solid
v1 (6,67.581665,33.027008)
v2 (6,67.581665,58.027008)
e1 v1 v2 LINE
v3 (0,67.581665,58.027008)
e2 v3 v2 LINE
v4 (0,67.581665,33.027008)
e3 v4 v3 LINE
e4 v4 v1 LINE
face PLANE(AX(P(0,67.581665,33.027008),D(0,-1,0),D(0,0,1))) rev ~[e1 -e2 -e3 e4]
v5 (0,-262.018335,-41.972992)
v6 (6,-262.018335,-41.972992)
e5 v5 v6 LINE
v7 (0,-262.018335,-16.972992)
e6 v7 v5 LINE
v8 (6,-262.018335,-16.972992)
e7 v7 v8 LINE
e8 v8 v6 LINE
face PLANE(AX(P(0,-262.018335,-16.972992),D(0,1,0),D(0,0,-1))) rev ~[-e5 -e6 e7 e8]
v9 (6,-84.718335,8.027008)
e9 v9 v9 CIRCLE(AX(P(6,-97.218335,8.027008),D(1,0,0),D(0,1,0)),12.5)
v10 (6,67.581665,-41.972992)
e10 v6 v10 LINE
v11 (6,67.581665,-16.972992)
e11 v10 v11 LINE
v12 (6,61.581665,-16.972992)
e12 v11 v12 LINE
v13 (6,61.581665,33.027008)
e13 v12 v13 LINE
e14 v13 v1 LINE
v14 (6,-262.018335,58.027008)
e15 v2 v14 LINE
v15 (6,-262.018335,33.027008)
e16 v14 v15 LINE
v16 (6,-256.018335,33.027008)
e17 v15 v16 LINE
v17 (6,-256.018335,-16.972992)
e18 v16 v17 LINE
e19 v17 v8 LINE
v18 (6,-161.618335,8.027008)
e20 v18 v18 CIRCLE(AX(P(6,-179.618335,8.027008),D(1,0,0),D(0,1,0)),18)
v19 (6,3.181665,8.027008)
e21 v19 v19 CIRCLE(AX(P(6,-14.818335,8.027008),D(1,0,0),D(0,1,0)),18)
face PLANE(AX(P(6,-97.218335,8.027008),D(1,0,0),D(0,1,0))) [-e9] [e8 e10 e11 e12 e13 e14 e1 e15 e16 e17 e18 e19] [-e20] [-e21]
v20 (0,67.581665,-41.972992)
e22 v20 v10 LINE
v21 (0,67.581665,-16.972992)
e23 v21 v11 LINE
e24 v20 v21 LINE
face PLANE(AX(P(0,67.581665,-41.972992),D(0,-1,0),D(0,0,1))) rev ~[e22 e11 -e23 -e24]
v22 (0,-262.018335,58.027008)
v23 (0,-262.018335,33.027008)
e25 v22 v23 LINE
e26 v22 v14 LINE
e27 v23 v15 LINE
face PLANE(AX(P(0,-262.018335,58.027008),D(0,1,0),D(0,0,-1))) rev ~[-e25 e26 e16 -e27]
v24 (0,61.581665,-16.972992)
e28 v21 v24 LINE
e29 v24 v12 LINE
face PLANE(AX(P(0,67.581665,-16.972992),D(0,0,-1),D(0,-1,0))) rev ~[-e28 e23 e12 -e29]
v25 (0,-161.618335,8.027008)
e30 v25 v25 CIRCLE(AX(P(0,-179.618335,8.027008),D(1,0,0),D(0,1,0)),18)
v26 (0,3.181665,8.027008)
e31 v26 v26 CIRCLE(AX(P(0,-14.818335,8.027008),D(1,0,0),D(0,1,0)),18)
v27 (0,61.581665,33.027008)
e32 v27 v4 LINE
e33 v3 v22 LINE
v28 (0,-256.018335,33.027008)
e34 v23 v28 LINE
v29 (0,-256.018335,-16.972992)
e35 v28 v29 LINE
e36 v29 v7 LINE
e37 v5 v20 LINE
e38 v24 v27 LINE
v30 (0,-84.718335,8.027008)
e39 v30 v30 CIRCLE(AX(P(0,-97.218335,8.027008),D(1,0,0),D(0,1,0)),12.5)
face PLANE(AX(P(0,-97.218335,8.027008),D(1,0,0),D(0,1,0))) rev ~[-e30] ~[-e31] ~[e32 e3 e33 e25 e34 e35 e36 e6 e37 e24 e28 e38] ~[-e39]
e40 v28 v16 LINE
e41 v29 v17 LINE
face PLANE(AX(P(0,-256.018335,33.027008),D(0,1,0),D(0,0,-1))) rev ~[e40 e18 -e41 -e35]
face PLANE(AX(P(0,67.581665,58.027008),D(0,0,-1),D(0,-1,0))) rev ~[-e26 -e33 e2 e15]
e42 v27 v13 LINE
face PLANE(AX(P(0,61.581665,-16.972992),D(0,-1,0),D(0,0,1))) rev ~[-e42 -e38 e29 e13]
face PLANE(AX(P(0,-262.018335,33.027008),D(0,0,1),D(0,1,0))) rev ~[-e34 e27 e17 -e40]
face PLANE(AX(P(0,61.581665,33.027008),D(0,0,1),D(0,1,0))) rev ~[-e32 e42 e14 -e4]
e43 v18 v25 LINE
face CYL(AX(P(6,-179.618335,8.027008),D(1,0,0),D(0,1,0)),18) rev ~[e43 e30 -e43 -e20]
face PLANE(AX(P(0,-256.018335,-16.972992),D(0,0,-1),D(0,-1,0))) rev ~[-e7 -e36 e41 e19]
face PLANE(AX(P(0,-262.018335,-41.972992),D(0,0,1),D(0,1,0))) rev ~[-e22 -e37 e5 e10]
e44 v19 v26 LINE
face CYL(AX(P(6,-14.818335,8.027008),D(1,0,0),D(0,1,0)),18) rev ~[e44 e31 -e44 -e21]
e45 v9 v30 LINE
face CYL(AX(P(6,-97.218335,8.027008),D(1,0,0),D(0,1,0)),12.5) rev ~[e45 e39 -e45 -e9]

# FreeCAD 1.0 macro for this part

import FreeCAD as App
import Part
import Sketcher

V = App.Vector
Q = App.Units.Quantity

doc = App.newDocument("Part")
body = doc.addObject("PartDesign::Body", "Body")

# Sketch on YZ plane
sketch1 = body.newObject("Sketcher::SketchObject", "Sketch")
sketch1.AttachmentSupport = (doc.getObject("YZ_Plane"), [""])
sketch1.MapMode = "FlatFace"
sketch1.addGeometry([
    Part.LineSegment(V(-262, 58, 0), V(-262, 33, 0)),  # 0
    Part.LineSegment(V(-262, 33, 0), V(-256, 33, 0)),  # 1
    Part.LineSegment(V(-256, 33, 0), V(-256, -17, 0)),  # 2
    Part.LineSegment(V(-256, -17, 0), V(-262, -17, 0)),  # 3
    Part.LineSegment(V(-262, -17, 0), V(-262, -42, 0)),  # 4
    Part.LineSegment(V(-262, -42, 0), V(68, -42, 0)),  # 5
    Part.LineSegment(V(68, -42, 0), V(68, -17, 0)),  # 6
    Part.LineSegment(V(68, -17, 0), V(62, -17, 0)),  # 7
    Part.LineSegment(V(62, -17, 0), V(62, 33, 0)),  # 8
    Part.LineSegment(V(62, 33, 0), V(68, 33, 0)),  # 9
    Part.LineSegment(V(68, 33, 0), V(68, 58, 0)),  # 10
    Part.LineSegment(V(68, 58, 0), V(-262, 58, 0)),  # 11
], False)
sketch1.addConstraint([
    Sketcher.Constraint("Coincident", 0, 2, 1, 1),
    Sketcher.Constraint("Coincident", 1, 2, 2, 1),
    Sketcher.Constraint("Coincident", 2, 2, 3, 1),
    Sketcher.Constraint("Coincident", 3, 2, 4, 1),
    Sketcher.Constraint("Coincident", 4, 2, 5, 1),
    Sketcher.Constraint("Coincident", 5, 2, 6, 1),
    Sketcher.Constraint("Coincident", 6, 2, 7, 1),
    Sketcher.Constraint("Coincident", 7, 2, 8, 1),
    Sketcher.Constraint("Coincident", 8, 2, 9, 1),
    Sketcher.Constraint("Coincident", 9, 2, 10, 1),
    Sketcher.Constraint("Coincident", 10, 2, 11, 1),
    Sketcher.Constraint("Coincident", 11, 2, 0, 1),
    Sketcher.Constraint("Vertical", 0),
    Sketcher.Constraint("Horizontal", 1),
    Sketcher.Constraint("Vertical", 2),
    Sketcher.Constraint("Horizontal", 3),
    Sketcher.Constraint("Vertical", 4),
    Sketcher.Constraint("Horizontal", 5),
    Sketcher.Constraint("Vertical", 6),
    Sketcher.Constraint("Horizontal", 7),
    Sketcher.Constraint("Vertical", 8),
    Sketcher.Constraint("Horizontal", 9),
    Sketcher.Constraint("Vertical", 10),
    Sketcher.Constraint("Horizontal", 11),
    Sketcher.Constraint("Horizontal", 3, 2, 6, 2),
    Sketcher.Constraint("Horizontal", 1, 2, 8, 2),
    Sketcher.Constraint("Vertical", 0, 2, 3, 2),
    Sketcher.Constraint("Vertical", 6, 2, 9, 2),
    Sketcher.Constraint("Equal", 3, 7),
    Sketcher.Constraint("Equal", 0, 4),
    Sketcher.Constraint("DistanceX", 1, 1, 1, 2, Q("6 mm")),
    Sketcher.Constraint("DistanceY", 0, 2, 0, 1, Q("25 mm")),
    Sketcher.Constraint("DistanceY", 2, 2, 2, 1, Q("50 mm")),
    Sketcher.Constraint("DistanceX", 5, 1, 5, 2, Q("329.6 mm")),
    Sketcher.Constraint("DistanceY", -1, 1, 0, 2, Q("33.027008 mm")),
    Sketcher.Constraint("DistanceX", 0, 2, -1, 1, Q("262.018335 mm")),
])
pad1 = body.newObject("PartDesign::Pad", "Pad")
pad1.Profile = sketch1
pad1.Length = 6

# Sketch on YZ plane
sketch2 = body.newObject("Sketcher::SketchObject", "Sketch001")
sketch2.AttachmentSupport = (doc.getObject("YZ_Plane"), [""])
sketch2.MapMode = "FlatFace"
sketch2.AttachmentOffset = App.Placement(V(0, 0, 6), App.Rotation())
sketch2.addGeometry([
    Part.Circle(V(-180, 8, 0), V(0, 0, 1), 18),
    Part.Circle(V(-97, 8, 0), V(0, 0, 1), 12),
    Part.Circle(V(-15, 8, 0), V(0, 0, 1), 18),
], False)
sketch2.addConstraint([
    Sketcher.Constraint("Equal", 0, 2),
    Sketcher.Constraint("Horizontal", 0, 3, 1, 3),
    Sketcher.Constraint("Horizontal", 1, 3, 2, 3),
    Sketcher.Constraint("Diameter", 0, Q("36 mm")),
    Sketcher.Constraint("Diameter", 1, Q("25 mm")),
    Sketcher.Constraint("DistanceX", 0, 3, 1, 3, Q("82.4 mm")),
    Sketcher.Constraint("DistanceX", 1, 3, 2, 3, Q("82.4 mm")),
    Sketcher.Constraint("DistanceX", 0, 3, -1, 1, Q("179.618335 mm")),
    Sketcher.Constraint("DistanceY", -1, 1, 0, 3, Q("8.027008 mm")),
])
pocket1 = body.newObject("PartDesign::Pocket", "Pocket")
pocket1.Profile = sketch2
pocket1.Length = 25

doc.recompute()
